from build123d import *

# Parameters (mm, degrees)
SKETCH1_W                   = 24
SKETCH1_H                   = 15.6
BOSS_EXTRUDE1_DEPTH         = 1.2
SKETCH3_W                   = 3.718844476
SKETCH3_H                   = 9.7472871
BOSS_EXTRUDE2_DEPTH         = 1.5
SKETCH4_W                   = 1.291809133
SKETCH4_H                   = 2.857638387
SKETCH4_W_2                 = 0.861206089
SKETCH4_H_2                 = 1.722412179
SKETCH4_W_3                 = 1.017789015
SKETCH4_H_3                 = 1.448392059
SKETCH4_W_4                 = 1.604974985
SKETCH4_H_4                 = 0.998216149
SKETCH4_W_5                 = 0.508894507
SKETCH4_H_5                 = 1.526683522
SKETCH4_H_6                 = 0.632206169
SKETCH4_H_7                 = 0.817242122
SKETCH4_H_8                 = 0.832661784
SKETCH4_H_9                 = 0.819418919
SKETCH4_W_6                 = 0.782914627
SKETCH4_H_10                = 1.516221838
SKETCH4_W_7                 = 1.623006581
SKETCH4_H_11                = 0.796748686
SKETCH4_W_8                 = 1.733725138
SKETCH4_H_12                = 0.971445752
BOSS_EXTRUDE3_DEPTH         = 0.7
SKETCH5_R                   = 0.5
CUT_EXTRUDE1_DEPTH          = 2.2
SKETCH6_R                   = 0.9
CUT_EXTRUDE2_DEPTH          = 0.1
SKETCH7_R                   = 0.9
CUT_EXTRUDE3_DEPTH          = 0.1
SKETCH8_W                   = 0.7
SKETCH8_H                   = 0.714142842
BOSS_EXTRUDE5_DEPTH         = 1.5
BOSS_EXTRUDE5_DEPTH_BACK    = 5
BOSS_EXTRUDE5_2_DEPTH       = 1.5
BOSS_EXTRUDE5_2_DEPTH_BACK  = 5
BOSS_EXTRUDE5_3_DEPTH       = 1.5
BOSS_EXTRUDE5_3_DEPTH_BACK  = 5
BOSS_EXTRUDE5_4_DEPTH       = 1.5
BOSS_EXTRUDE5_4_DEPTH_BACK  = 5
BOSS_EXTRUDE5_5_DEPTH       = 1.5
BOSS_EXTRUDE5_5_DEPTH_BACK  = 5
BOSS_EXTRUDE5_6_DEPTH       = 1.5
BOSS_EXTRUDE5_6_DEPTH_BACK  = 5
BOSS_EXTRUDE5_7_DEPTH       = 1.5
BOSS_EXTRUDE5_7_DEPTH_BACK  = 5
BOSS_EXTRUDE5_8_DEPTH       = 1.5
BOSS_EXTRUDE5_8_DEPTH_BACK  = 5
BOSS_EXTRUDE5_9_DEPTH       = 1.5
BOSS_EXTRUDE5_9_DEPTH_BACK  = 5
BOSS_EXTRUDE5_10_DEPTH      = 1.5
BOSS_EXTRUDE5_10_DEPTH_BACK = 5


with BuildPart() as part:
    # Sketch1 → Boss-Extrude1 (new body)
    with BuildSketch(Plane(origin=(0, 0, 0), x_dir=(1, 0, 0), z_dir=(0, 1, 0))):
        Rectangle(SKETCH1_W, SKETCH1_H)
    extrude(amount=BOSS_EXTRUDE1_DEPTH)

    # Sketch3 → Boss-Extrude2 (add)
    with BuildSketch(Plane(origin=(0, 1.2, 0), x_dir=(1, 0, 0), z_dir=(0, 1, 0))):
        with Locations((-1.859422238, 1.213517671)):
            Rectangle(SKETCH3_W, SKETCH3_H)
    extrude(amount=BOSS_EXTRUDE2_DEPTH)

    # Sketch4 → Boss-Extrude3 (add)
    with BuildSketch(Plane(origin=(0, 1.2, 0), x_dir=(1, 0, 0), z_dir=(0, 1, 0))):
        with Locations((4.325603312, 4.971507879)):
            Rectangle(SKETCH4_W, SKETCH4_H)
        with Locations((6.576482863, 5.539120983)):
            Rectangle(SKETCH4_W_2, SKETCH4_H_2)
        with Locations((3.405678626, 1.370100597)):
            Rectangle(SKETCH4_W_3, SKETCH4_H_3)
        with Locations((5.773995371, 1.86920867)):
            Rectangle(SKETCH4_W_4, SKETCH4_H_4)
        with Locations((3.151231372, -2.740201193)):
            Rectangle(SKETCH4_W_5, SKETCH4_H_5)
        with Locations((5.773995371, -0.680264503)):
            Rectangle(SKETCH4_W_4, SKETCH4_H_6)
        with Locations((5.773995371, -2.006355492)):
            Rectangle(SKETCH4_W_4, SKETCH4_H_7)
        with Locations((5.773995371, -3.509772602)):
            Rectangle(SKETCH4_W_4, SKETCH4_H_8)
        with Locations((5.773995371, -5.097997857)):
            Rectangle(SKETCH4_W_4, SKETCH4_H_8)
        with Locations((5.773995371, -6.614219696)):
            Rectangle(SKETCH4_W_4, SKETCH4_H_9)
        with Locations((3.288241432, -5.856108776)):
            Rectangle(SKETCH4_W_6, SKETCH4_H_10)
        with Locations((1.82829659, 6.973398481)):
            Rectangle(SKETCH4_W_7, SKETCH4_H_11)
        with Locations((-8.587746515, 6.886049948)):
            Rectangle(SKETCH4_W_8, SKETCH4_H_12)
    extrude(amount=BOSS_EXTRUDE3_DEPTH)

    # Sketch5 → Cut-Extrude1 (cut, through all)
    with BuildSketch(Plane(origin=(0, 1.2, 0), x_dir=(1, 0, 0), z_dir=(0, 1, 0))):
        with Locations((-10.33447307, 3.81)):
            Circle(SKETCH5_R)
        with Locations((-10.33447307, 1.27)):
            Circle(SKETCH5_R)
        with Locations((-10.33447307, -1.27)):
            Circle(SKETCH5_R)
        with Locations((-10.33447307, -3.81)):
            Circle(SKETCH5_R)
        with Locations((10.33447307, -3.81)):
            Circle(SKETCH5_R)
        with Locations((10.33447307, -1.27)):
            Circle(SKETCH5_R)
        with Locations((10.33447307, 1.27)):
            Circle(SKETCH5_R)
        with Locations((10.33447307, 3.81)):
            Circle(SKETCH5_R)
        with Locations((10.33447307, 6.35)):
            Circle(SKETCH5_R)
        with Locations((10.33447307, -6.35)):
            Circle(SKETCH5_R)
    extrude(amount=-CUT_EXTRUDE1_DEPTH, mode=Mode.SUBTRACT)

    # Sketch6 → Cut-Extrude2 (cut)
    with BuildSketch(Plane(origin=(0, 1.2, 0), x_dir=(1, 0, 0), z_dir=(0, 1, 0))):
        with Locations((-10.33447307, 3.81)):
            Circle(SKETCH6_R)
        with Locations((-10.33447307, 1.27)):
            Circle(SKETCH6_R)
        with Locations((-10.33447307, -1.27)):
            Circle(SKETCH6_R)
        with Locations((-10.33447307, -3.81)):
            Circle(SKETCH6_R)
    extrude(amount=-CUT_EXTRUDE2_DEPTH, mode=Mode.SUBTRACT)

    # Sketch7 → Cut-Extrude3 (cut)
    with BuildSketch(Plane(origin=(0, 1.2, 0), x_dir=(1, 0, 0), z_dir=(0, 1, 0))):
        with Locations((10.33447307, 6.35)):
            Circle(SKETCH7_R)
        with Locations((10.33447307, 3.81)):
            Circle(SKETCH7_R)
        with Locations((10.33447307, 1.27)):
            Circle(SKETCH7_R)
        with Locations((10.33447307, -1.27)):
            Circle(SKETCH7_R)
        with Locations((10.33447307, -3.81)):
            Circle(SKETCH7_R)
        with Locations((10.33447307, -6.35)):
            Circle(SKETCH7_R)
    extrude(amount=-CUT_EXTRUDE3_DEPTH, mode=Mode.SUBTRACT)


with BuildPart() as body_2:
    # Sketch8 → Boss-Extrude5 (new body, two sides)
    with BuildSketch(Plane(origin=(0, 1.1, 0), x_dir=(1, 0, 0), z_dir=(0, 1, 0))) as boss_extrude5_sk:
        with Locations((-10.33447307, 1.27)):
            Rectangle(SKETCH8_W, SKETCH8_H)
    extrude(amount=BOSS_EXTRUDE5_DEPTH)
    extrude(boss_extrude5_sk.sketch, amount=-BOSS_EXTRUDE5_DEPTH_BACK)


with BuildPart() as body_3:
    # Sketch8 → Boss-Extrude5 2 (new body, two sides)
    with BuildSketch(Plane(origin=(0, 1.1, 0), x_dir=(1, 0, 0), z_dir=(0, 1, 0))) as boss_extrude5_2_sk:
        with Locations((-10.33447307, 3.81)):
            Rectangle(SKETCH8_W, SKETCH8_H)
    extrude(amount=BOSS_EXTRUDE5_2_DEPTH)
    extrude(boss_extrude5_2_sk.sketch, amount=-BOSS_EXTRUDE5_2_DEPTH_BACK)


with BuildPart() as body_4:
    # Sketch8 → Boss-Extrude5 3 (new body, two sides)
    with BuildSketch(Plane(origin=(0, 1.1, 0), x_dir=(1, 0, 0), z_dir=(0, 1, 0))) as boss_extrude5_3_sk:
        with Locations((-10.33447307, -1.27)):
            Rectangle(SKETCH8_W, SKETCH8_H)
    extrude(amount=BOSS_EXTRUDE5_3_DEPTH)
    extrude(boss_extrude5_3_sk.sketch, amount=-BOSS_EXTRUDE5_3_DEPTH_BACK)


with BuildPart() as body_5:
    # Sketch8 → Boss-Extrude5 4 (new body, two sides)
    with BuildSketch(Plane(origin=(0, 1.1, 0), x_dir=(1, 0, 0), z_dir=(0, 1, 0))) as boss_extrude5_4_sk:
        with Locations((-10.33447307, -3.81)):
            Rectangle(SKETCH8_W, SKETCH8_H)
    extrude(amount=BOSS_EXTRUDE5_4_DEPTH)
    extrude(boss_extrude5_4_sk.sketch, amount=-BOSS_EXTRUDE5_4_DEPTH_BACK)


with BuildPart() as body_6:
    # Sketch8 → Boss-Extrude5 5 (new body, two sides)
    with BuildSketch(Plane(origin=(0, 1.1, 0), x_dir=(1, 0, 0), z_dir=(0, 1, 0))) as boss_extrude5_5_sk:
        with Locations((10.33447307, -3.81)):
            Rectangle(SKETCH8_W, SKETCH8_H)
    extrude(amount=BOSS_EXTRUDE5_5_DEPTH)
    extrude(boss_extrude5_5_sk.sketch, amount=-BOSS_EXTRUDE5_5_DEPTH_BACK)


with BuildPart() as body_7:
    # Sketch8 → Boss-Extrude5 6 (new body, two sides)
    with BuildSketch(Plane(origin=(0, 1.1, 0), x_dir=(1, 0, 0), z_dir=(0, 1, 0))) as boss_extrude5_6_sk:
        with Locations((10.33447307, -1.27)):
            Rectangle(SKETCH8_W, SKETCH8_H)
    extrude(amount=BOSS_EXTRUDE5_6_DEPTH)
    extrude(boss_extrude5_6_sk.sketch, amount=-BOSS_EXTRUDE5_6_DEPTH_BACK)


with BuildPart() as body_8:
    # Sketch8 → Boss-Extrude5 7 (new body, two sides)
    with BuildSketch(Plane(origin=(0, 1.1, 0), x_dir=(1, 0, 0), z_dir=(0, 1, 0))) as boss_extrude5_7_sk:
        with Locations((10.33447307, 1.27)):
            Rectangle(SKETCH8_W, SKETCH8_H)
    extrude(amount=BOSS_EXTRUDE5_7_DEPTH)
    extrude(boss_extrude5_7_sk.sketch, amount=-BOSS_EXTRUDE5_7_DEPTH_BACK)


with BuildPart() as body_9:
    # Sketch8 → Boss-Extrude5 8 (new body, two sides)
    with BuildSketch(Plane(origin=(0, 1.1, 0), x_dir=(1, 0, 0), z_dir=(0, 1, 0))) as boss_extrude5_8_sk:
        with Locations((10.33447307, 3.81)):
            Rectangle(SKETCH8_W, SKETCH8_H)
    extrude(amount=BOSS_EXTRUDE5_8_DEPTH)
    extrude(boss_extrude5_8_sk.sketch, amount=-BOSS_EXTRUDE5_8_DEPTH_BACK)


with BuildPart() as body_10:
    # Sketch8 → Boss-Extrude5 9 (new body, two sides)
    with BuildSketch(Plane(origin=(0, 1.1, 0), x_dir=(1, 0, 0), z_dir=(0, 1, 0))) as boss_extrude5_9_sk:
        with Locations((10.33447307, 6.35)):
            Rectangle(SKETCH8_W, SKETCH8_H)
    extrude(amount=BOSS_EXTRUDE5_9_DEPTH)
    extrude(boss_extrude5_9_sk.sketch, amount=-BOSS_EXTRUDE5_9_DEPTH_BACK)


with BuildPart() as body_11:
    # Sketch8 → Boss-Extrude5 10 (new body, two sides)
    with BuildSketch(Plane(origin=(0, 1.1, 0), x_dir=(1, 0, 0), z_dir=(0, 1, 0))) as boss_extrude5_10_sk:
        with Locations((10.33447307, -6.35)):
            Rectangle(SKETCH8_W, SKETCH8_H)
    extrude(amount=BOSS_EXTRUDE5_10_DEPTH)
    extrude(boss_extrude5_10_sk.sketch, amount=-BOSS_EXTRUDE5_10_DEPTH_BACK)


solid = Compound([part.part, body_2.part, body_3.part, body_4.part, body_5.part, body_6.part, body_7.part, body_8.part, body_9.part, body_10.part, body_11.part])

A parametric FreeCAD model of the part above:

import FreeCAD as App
import Part
import Sketcher

V = App.Vector


def add_polygon(sketch, points):
    """Adds a closed chain of lines whose ends are joined by coincident constraints."""
    first, n = sketch.GeometryCount, len(points)
    for a, b in zip(points, points[1:] + points[:1]):
        sketch.addGeometry(Part.LineSegment(App.Vector(*a, 0), App.Vector(*b, 0)), False)
    for i in range(n):
        sketch.addConstraint(Sketcher.Constraint("Coincident", first + i, 2, first + (i + 1) % n, 1))

doc = App.newDocument("Part")
params = doc.addObject("Spreadsheet::Sheet", "Params")
for row, (alias, value) in enumerate([
    ("sketch1_width", "24 mm"),
    ("sketch1_height", "15.6 mm"),
    ("pad1_length", "1.2 mm"),
    ("pad2_length", "1.5 mm"),
    ("pad3_length", "0.7 mm"),
    ("sketch4_diameter", "1 mm"),
    ("sketch5_diameter", "1.8 mm"),
    ("pocket2_length", "0.1 mm"),
    ("sketch6_diameter", "1.8 mm"),
    ("pocket3_length", "0.1 mm"),
    ("sketch7_width", "0.7 mm"),
    ("pad4_length", "1.5 mm"),
    ("pad4_length2", "5 mm"),
    ("sketch8_width", "0.7 mm"),
    ("pad5_length", "1.5 mm"),
    ("pad5_length2", "5 mm"),
    ("sketch9_width", "0.7 mm"),
    ("pad6_length", "1.5 mm"),
    ("pad6_length2", "5 mm"),
    ("sketch10_width", "0.7 mm"),
    ("pad7_length", "1.5 mm"),
    ("pad7_length2", "5 mm"),
    ("sketch11_width", "0.7 mm"),
    ("pad8_length", "1.5 mm"),
    ("pad8_length2", "5 mm"),
    ("sketch12_width", "0.7 mm"),
    ("pad9_length", "1.5 mm"),
    ("pad9_length2", "5 mm"),
    ("sketch13_width", "0.7 mm"),
    ("pad10_length", "1.5 mm"),
    ("pad10_length2", "5 mm"),
    ("sketch14_width", "0.7 mm"),
    ("pad11_length", "1.5 mm"),
    ("pad11_length2", "5 mm"),
    ("sketch15_width", "0.7 mm"),
    ("pad12_length", "1.5 mm"),
    ("pad12_length2", "5 mm"),
    ("sketch16_width", "0.7 mm"),
    ("pad13_length", "1.5 mm"),
    ("pad13_length2", "5 mm"),
], start=1):
    params.set(f"A{row}", alias)
    params.set(f"B{row}", "=" + value)
    params.setAlias(f"B{row}", alias)

body = doc.addObject("PartDesign::Body", "Body")

sketch1 = doc.addObject("Sketcher::SketchObject", "Sketch")
body.addObject(sketch1)
sketch1.AttachmentSupport = (doc.XZ_Plane, [""])
sketch1.MapMode = "FlatFace"
add_polygon(sketch1, [(-12, -8), (-12, 8), (12, 8), (12, -8)])
sketch1.addConstraint([
    Sketcher.Constraint("Vertical", 0),
    Sketcher.Constraint("Horizontal", 1),
    Sketcher.Constraint("Vertical", 2),
    Sketcher.Constraint("Horizontal", 3),
    Sketcher.Constraint("Symmetric", 0, 2, 2, 2, -1, 1),
    Sketcher.Constraint("DistanceX", 1, 1, 1, 2, 24.0),
    Sketcher.Constraint("DistanceY", 0, 1, 0, 2, 15.6),
])
sketch1.setExpression("Constraints[9]", "Params.sketch1_width")
sketch1.setExpression("Constraints[10]", "Params.sketch1_height")
pad1 = doc.addObject("PartDesign::Pad", "Pad")
body.addObject(pad1)
pad1.Profile = sketch1
pad1.setExpression("Length", "Params.pad1_length")
pad1.Reversed = True

sketch2 = doc.addObject("Sketcher::SketchObject", "Sketch001")
body.addObject(sketch2)
sketch2.AttachmentSupport = (doc.XZ_Plane, [""])
sketch2.MapMode = "FlatFace"
sketch2.AttachmentOffset = App.Placement(V(0, 0, -1.2), App.Rotation())
add_polygon(sketch2, [(-3.7, -6.1), (-3.7, 3.7), (0, 3.7), (0, -6.1)])
sketch2.addConstraint([
    Sketcher.Constraint("Vertical", 0),
    Sketcher.Constraint("Horizontal", 1),
    Sketcher.Constraint("Vertical", 2),
    Sketcher.Constraint("Horizontal", 3),
    Sketcher.Constraint("PointOnObject", 1, 2, -2),
    Sketcher.Constraint("DistanceX", 1, 1, 1, 2, 3.718844),
    Sketcher.Constraint("DistanceY", 0, 1, 0, 2, 9.747287),
    Sketcher.Constraint("DistanceY", 2, 2, -1, 1, 6.087161),
])
pad2 = doc.addObject("PartDesign::Pad", "Pad001")
body.addObject(pad2)
pad2.Profile = sketch2
pad2.setExpression("Length", "Params.pad2_length")
pad2.Reversed = True

sketch3 = doc.addObject("Sketcher::SketchObject", "Sketch002")
body.addObject(sketch3)
sketch3.AttachmentSupport = (doc.XZ_Plane, [""])
sketch3.MapMode = "FlatFace"
sketch3.AttachmentOffset = App.Placement(V(0, 0, -1.2), App.Rotation())
add_polygon(sketch3, [(3.7, -6.4), (3.7, -3.5), (5, -3.5), (5, -6.4)])
add_polygon(sketch3, [(6.1, -6.4), (6.1, -4.7), (7, -4.7), (7, -6.4)])
add_polygon(sketch3, [(2.9, -2.1), (2.9, -0.6), (3.9, -0.6), (3.9, -2.1)])
add_polygon(sketch3, [(5, -2.4), (5, -1.4), (6.6, -1.4), (6.6, -2.4)])
add_polygon(sketch3, [(2.9, 2), (2.9, 3.5), (3.4, 3.5), (3.4, 2)])
add_polygon(sketch3, [(5, 0.4), (5, 1), (6.6, 1), (6.6, 0.4)])
add_polygon(sketch3, [(5, 1.6), (5, 2.4), (6.6, 2.4), (6.6, 1.6)])
add_polygon(sketch3, [(5, 3.1), (5, 3.9), (6.6, 3.9), (6.6, 3.1)])
add_polygon(sketch3, [(5, 4.7), (5, 5.5), (6.6, 5.5), (6.6, 4.7)])
add_polygon(sketch3, [(5, 6.2), (5, 7), (6.6, 7), (6.6, 6.2)])
add_polygon(sketch3, [(2.9, 5.1), (2.9, 6.6), (3.7, 6.6), (3.7, 5.1)])
add_polygon(sketch3, [(1, -7.4), (1, -6.6), (2.6, -6.6), (2.6, -7.4)])
add_polygon(sketch3, [(-9.5, -7.4), (-9.5, -6.4), (-7.7, -6.4), (-7.7, -7.4)])
sketch3.addConstraint([
    Sketcher.Constraint("Vertical", 0),
    Sketcher.Constraint("Horizontal", 1),
    Sketcher.Constraint("Vertical", 2),
    Sketcher.Constraint("Horizontal", 3),
    Sketcher.Constraint("Vertical", 4),
    Sketcher.Constraint("Horizontal", 5),
    Sketcher.Constraint("Vertical", 6),
    Sketcher.Constraint("Horizontal", 7),
    Sketcher.Constraint("Vertical", 8),
    Sketcher.Constraint("Horizontal", 9),
    Sketcher.Constraint("Vertical", 10),
    Sketcher.Constraint("Horizontal", 11),
    Sketcher.Constraint("Vertical", 12),
    Sketcher.Constraint("Horizontal", 13),
    Sketcher.Constraint("Vertical", 14),
    Sketcher.Constraint("Horizontal", 15),
    Sketcher.Constraint("Vertical", 16),
    Sketcher.Constraint("Horizontal", 17),
    Sketcher.Constraint("Vertical", 18),
    Sketcher.Constraint("Horizontal", 19),
    Sketcher.Constraint("Vertical", 20),
    Sketcher.Constraint("Horizontal", 21),
    Sketcher.Constraint("Vertical", 22),
    Sketcher.Constraint("Horizontal", 23),
    Sketcher.Constraint("Vertical", 24),
    Sketcher.Constraint("Horizontal", 25),
    Sketcher.Constraint("Vertical", 26),
    Sketcher.Constraint("Horizontal", 27),
    Sketcher.Constraint("Vertical", 28),
    Sketcher.Constraint("Horizontal", 29),
    Sketcher.Constraint("Vertical", 30),
    Sketcher.Constraint("Horizontal", 31),
    Sketcher.Constraint("Vertical", 32),
    Sketcher.Constraint("Horizontal", 33),
    Sketcher.Constraint("Vertical", 34),
    Sketcher.Constraint("Horizontal", 35),
    Sketcher.Constraint("Vertical", 36),
    Sketcher.Constraint("Horizontal", 37),
    Sketcher.Constraint("Vertical", 38),
    Sketcher.Constraint("Horizontal", 39),
    Sketcher.Constraint("Vertical", 40),
    Sketcher.Constraint("Horizontal", 41),
    Sketcher.Constraint("Vertical", 42),
    Sketcher.Constraint("Horizontal", 43),
    Sketcher.Constraint("Vertical", 44),
    Sketcher.Constraint("Horizontal", 45),
    Sketcher.Constraint("Vertical", 46),
    Sketcher.Constraint("Horizontal", 47),
    Sketcher.Constraint("Vertical", 48),
    Sketcher.Constraint("Horizontal", 49),
    Sketcher.Constraint("Vertical", 50),
    Sketcher.Constraint("Horizontal", 51),
    Sketcher.Constraint("Horizontal", 3, 2, 6, 2),
    Sketcher.Constraint("Horizontal", 7, 2, 48, 2),
    Sketcher.Constraint("Horizontal", 47, 2, 50, 2),
    Sketcher.Constraint("Vertical", 2, 2, 12, 2),
    Sketcher.Constraint("Vertical", 11, 2, 16, 2),
    Sketcher.Constraint("Vertical", 15, 2, 20, 2),
    Sketcher.Constraint("Vertical", 14, 2, 21, 2),
    Sketcher.Constraint("Vertical", 23, 2, 24, 2),
    Sketcher.Constraint("Vertical", 22, 2, 25, 2),
    Sketcher.Constraint("Vertical", 27, 2, 28, 2),
    Sketcher.Constraint("Vertical", 26, 2, 29, 2),
    Sketcher.Constraint("Vertical", 31, 2, 32, 2),
    Sketcher.Constraint("Vertical", 30, 2, 33, 2),
    Sketcher.Constraint("Vertical", 35, 2, 36, 2),
    Sketcher.Constraint("Vertical", 34, 2, 37, 2),
    Sketcher.Constraint("Vertical", 19, 2, 40, 2),
    Sketcher.Constraint("Vertical", 3, 2, 41, 2),
    Sketcher.Constraint("Equal", 30, 32),
    Sketcher.Constraint("DistanceX", 1, 1, 1, 2, 1.291809),
    Sketcher.Constraint("DistanceX", 9, 1, 9, 2, 1.017789),
    Sketcher.Constraint("DistanceY", 0, 1, 0, 2, 2.857638),
    Sketcher.Constraint("DistanceY", 28, 1, 28, 2, 0.832662),
    Sketcher.Constraint("DistanceY", 36, 1, 36, 2, 0.819419),
    Sketcher.Constraint("DistanceY", 40, 1, 40, 2, 1.516222),
    Sketcher.Constraint("DistanceY", 44, 1, 44, 2, 0.796749),
    Sketcher.Constraint("DistanceX", -1, 1, 0, 2, 3.679699),
    Sketcher.Constraint("DistanceY", 12, 2, -1, 1, 1.370101),
    Sketcher.Constraint("DistanceX", -1, 1, 45, 2, 2.6398),
    Sketcher.Constraint("DistanceX", 8, 2, 5, 2, 4.110302),
    Sketcher.Constraint("DistanceY", 4, 2, 14, 2, 2.309598),
    Sketcher.Constraint("DistanceY", 31, 2, 17, 2, 0.410101),
    Sketcher.Constraint("DistanceY", 32, 2, 36, 2, 1.5096),
    Sketcher.Constraint("DistanceX", 5, 1, 5, 2, 0.861206),
    Sketcher.Constraint("DistanceX", 13, 1, 13, 2, 1.604975),
    Sketcher.Constraint("DistanceX", 17, 1, 17, 2, 0.508895),
    Sketcher.Constraint("DistanceX", 41, 1, 41, 2, 0.782915),
    Sketcher.Constraint("DistanceX", 45, 1, 45, 2, 1.623007),
    Sketcher.Constraint("DistanceX", 49, 1, 49, 2, 1.733725),
    Sketcher.Constraint("DistanceY", 4, 1, 4, 2, 1.722412),
    Sketcher.Constraint("DistanceY", 8, 1, 8, 2, 1.448392),
    Sketcher.Constraint("DistanceY", 12, 1, 12, 2, 0.998216),
    Sketcher.Constraint("DistanceY", 16, 1, 16, 2, 1.526684),
    Sketcher.Constraint("DistanceY", 20, 1, 20, 2, 0.632206),
    Sketcher.Constraint("DistanceY", 24, 1, 24, 2, 0.817242),
    Sketcher.Constraint("DistanceY", 48, 1, 48, 2, 0.971446),
    Sketcher.Constraint("DistanceY", -1, 1, 18, 2, 1.976859),
    Sketcher.Constraint("DistanceY", -1, 1, 22, 2, 0.364161),
    Sketcher.Constraint("DistanceY", -1, 1, 32, 2, 5.514329),
    Sketcher.Constraint("DistanceY", -1, 1, 40, 2, 6.61422),
    Sketcher.Constraint("DistanceX", 48, 2, -1, 1, 9.454609),
    Sketcher.Constraint("DistanceY", 4, 2, 8, 2, 4.03201),
    Sketcher.Constraint("DistanceY", 20, 2, 24, 2, 1.418609),
])
pad3 = doc.addObject("PartDesign::Pad", "Pad002")
body.addObject(pad3)
pad3.Profile = sketch3
pad3.setExpression("Length", "Params.pad3_length")
pad3.Reversed = True

sketch4 = doc.addObject("Sketcher::SketchObject", "Sketch003")
body.addObject(sketch4)
sketch4.AttachmentSupport = (doc.XZ_Plane, [""])
sketch4.MapMode = "FlatFace"
sketch4.AttachmentOffset = App.Placement(V(0, 0, -1.2), App.Rotation())
sketch4.addGeometry([
    Part.Circle(V(-10.3, -3.8, 0), V(0, 0, 1), 0.5),
    Part.Circle(V(-10.3, -1.3, 0), V(0, 0, 1), 0.5),
    Part.Circle(V(-10.3, 1.3, 0), V(0, 0, 1), 0.5),
    Part.Circle(V(-10.3, 3.8, 0), V(0, 0, 1), 0.5),
    Part.Circle(V(10.3, 3.8, 0), V(0, 0, 1), 0.5),
    Part.Circle(V(10.3, 1.3, 0), V(0, 0, 1), 0.5),
    Part.Circle(V(10.3, -1.3, 0), V(0, 0, 1), 0.5),
    Part.Circle(V(10.3, -3.8, 0), V(0, 0, 1), 0.5),
    Part.Circle(V(10.3, -6.3, 0), V(0, 0, 1), 0.5),
    Part.Circle(V(10.3, 6.3, 0), V(0, 0, 1), 0.5),
], False)
sketch4.addConstraint([
    Sketcher.Constraint("Equal", 0, 1),
    Sketcher.Constraint("Equal", 1, 2),
    Sketcher.Constraint("Equal", 2, 3),
    Sketcher.Constraint("Equal", 3, 4),
    Sketcher.Constraint("Equal", 4, 5),
    Sketcher.Constraint("Equal", 5, 6),
    Sketcher.Constraint("Equal", 6, 7),
    Sketcher.Constraint("Equal", 7, 8),
    Sketcher.Constraint("Equal", 8, 9),
    Sketcher.Constraint("Symmetric", 0, 3, 4, 3, -1, 1),
    Sketcher.Constraint("Symmetric", 1, 3, 5, 3, -1, 1),
    Sketcher.Constraint("Symmetric", 2, 3, 6, 3, -1, 1),
    Sketcher.Constraint("Symmetric", 3, 3, 7, 3, -1, 1),
    Sketcher.Constraint("Symmetric", 3, 3, 4, 3, -2),
    Sketcher.Constraint("Symmetric", 2, 3, 5, 3, -2),
    Sketcher.Constraint("Symmetric", 8, 3, 9, 3, -1),
    Sketcher.Constraint("Vertical", 0, 3, 1, 3),
    Sketcher.Constraint("Vertical", 7, 3, 8, 3),
    Sketcher.Constraint("Diameter", 0, 1.0),
    Sketcher.Constraint("DistanceY", 8, 3, 9, 3, 12.7),
    Sketcher.Constraint("DistanceY", 0, 3, -1, 1, 3.81),
    Sketcher.Constraint("DistanceY", 1, 3, -1, 1, 1.27),
    Sketcher.Constraint("DistanceX", 0, 3, -1, 1, 10.334473),
])
sketch4.setExpression("Constraints[18]", "Params.sketch4_diameter")
pocket1 = doc.addObject("PartDesign::Pocket", "Pocket")
body.addObject(pocket1)
pocket1.Profile = sketch4
pocket1.Type = "ThroughAll"
pocket1.Reversed = True

sketch5 = doc.addObject("Sketcher::SketchObject", "Sketch004")
body.addObject(sketch5)
sketch5.AttachmentSupport = (doc.XZ_Plane, [""])
sketch5.MapMode = "FlatFace"
sketch5.AttachmentOffset = App.Placement(V(0, 0, -1.2), App.Rotation())
sketch5.addGeometry([
    Part.Circle(V(-10.3, -3.8, 0), V(0, 0, 1), 0.9),
    Part.Circle(V(-10.3, -1.3, 0), V(0, 0, 1), 0.9),
    Part.Circle(V(-10.3, 1.3, 0), V(0, 0, 1), 0.9),
    Part.Circle(V(-10.3, 3.8, 0), V(0, 0, 1), 0.9),
], False)
sketch5.addConstraint([
    Sketcher.Constraint("Equal", 0, 1),
    Sketcher.Constraint("Equal", 1, 2),
    Sketcher.Constraint("Equal", 2, 3),
    Sketcher.Constraint("Symmetric", 1, 3, 2, 3, -1),
    Sketcher.Constraint("Symmetric", 0, 3, 3, 3, -1),
    Sketcher.Constraint("Vertical", 0, 3, 1, 3),
    Sketcher.Constraint("Diameter", 0, 1.8),
    Sketcher.Constraint("DistanceY", 0, 3, -1, 1, 3.81),
    Sketcher.Constraint("DistanceY", 1, 3, -1, 1, 1.27),
    Sketcher.Constraint("DistanceX", 0, 3, -1, 1, 10.334473),
])
sketch5.setExpression("Constraints[6]", "Params.sketch5_diameter")
pocket2 = doc.addObject("PartDesign::Pocket", "Pocket001")
body.addObject(pocket2)
pocket2.Profile = sketch5
pocket2.setExpression("Length", "Params.pocket2_length")
pocket2.Reversed = True

sketch6 = doc.addObject("Sketcher::SketchObject", "Sketch005")
body.addObject(sketch6)
sketch6.AttachmentSupport = (doc.XZ_Plane, [""])
sketch6.MapMode = "FlatFace"
sketch6.AttachmentOffset = App.Placement(V(0, 0, -1.2), App.Rotation())
sketch6.addGeometry([
    Part.Circle(V(10.3, -6.3, 0), V(0, 0, 1), 0.9),
    Part.Circle(V(10.3, -3.8, 0), V(0, 0, 1), 0.9),
    Part.Circle(V(10.3, -1.3, 0), V(0, 0, 1), 0.9),
    Part.Circle(V(10.3, 1.3, 0), V(0, 0, 1), 0.9),
    Part.Circle(V(10.3, 3.8, 0), V(0, 0, 1), 0.9),
    Part.Circle(V(10.3, 6.3, 0), V(0, 0, 1), 0.9),
], False)
sketch6.addConstraint([
    Sketcher.Constraint("Equal", 0, 1),
    Sketcher.Constraint("Equal", 1, 2),
    Sketcher.Constraint("Equal", 2, 3),
    Sketcher.Constraint("Equal", 3, 4),
    Sketcher.Constraint("Equal", 4, 5),
    Sketcher.Constraint("Symmetric", 2, 3, 3, 3, -1),
    Sketcher.Constraint("Symmetric", 1, 3, 4, 3, -1),
    Sketcher.Constraint("Symmetric", 0, 3, 5, 3, -1),
    Sketcher.Constraint("Vertical", 0, 3, 1, 3),
    Sketcher.Constraint("Vertical", 1, 3, 2, 3),
    Sketcher.Constraint("Diameter", 0, 1.8),
    Sketcher.Constraint("DistanceY", 0, 3, 5, 3, 12.7),
    Sketcher.Constraint("DistanceY", 1, 3, -1, 1, 3.81),
    Sketcher.Constraint("DistanceY", 2, 3, -1, 1, 1.27),
    Sketcher.Constraint("DistanceX", -1, 1, 0, 3, 10.334473),
])
sketch6.setExpression("Constraints[10]", "Params.sketch6_diameter")
pocket3 = doc.addObject("PartDesign::Pocket", "Pocket002")
body.addObject(pocket3)
pocket3.Profile = sketch6
pocket3.setExpression("Length", "Params.pocket3_length")
pocket3.Reversed = True
body2 = doc.addObject("PartDesign::Body", "Body001")

sketch7 = doc.addObject("Sketcher::SketchObject", "Sketch006")
body2.addObject(sketch7)
sketch7.AttachmentSupport = (doc.getObject("XZ_Plane001"), [""])
sketch7.MapMode = "FlatFace"
sketch7.AttachmentOffset = App.Placement(V(0, 0, -1.1), App.Rotation())
add_polygon(sketch7, [(-10.7, -1.6), (-10.7, -0.9), (-10, -0.9), (-10, -1.6)])
sketch7.addConstraint([
    Sketcher.Constraint("Vertical", 0),
    Sketcher.Constraint("Horizontal", 1),
    Sketcher.Constraint("Vertical", 2),
    Sketcher.Constraint("Horizontal", 3),
    Sketcher.Constraint("DistanceX", 1, 1, 1, 2, 0.7),
    Sketcher.Constraint("DistanceY", 0, 1, 0, 2, 0.714143),
    Sketcher.Constraint("DistanceY", 0, 2, -1, 1, 0.912929),
    Sketcher.Constraint("DistanceX", 0, 2, -1, 1, 10.684473),
])
sketch7.setExpression("Constraints[8]", "Params.sketch7_width")
pad4 = doc.addObject("PartDesign::Pad", "Pad003")
body2.addObject(pad4)
pad4.Profile = sketch7
pad4.Type = "TwoLengths"
pad4.setExpression("Length", "Params.pad4_length")
pad4.setExpression("Length2", "Params.pad4_length2")
pad4.Reversed = True
body3 = doc.addObject("PartDesign::Body", "Body002")

sketch8 = doc.addObject("Sketcher::SketchObject", "Sketch007")
body3.addObject(sketch8)
sketch8.AttachmentSupport = (doc.getObject("XZ_Plane002"), [""])
sketch8.MapMode = "FlatFace"
sketch8.AttachmentOffset = App.Placement(V(0, 0, -1.1), App.Rotation())
add_polygon(sketch8, [(-10.7, -4.2), (-10.7, -3.5), (-10, -3.5), (-10, -4.2)])
sketch8.addConstraint([
    Sketcher.Constraint("Vertical", 0),
    Sketcher.Constraint("Horizontal", 1),
    Sketcher.Constraint("Vertical", 2),
    Sketcher.Constraint("Horizontal", 3),
    Sketcher.Constraint("DistanceX", 1, 1, 1, 2, 0.7),
    Sketcher.Constraint("DistanceY", 0, 1, 0, 2, 0.714143),
    Sketcher.Constraint("DistanceY", 0, 2, -1, 1, 3.452929),
    Sketcher.Constraint("DistanceX", 0, 2, -1, 1, 10.684473),
])
sketch8.setExpression("Constraints[8]", "Params.sketch8_width")
pad5 = doc.addObject("PartDesign::Pad", "Pad004")
body3.addObject(pad5)
pad5.Profile = sketch8
pad5.Type = "TwoLengths"
pad5.setExpression("Length", "Params.pad5_length")
pad5.setExpression("Length2", "Params.pad5_length2")
pad5.Reversed = True
body4 = doc.addObject("PartDesign::Body", "Body003")

sketch9 = doc.addObject("Sketcher::SketchObject", "Sketch008")
body4.addObject(sketch9)
sketch9.AttachmentSupport = (doc.getObject("XZ_Plane003"), [""])
sketch9.MapMode = "FlatFace"
sketch9.AttachmentOffset = App.Placement(V(0, 0, -1.1), App.Rotation())
add_polygon(sketch9, [(-10.7, 0.9), (-10.7, 1.6), (-10, 1.6), (-10, 0.9)])
sketch9.addConstraint([
    Sketcher.Constraint("Vertical", 0),
    Sketcher.Constraint("Horizontal", 1),
    Sketcher.Constraint("Vertical", 2),
    Sketcher.Constraint("Horizontal", 3),
    Sketcher.Constraint("DistanceX", 1, 1, 1, 2, 0.7),
    Sketcher.Constraint("DistanceY", 0, 1, 0, 2, 0.714143),
    Sketcher.Constraint("DistanceY", -1, 1, 0, 2, 1.627071),
    Sketcher.Constraint("DistanceX", 0, 2, -1, 1, 10.684473),
])
sketch9.setExpression("Constraints[8]", "Params.sketch9_width")
pad6 = doc.addObject("PartDesign::Pad", "Pad005")
body4.addObject(pad6)
pad6.Profile = sketch9
pad6.Type = "TwoLengths"
pad6.setExpression("Length", "Params.pad6_length")
pad6.setExpression("Length2", "Params.pad6_length2")
pad6.Reversed = True
body5 = doc.addObject("PartDesign::Body", "Body004")

sketch10 = doc.addObject("Sketcher::SketchObject", "Sketch009")
body5.addObject(sketch10)
sketch10.AttachmentSupport = (doc.getObject("XZ_Plane004"), [""])
sketch10.MapMode = "FlatFace"
sketch10.AttachmentOffset = App.Placement(V(0, 0, -1.1), App.Rotation())
add_polygon(sketch10, [(-10.7, 3.5), (-10.7, 4.2), (-10, 4.2), (-10, 3.5)])
sketch10.addConstraint([
    Sketcher.Constraint("Vertical", 0),
    Sketcher.Constraint("Horizontal", 1),
    Sketcher.Constraint("Vertical", 2),
    Sketcher.Constraint("Horizontal", 3),
    Sketcher.Constraint("DistanceX", 1, 1, 1, 2, 0.7),
    Sketcher.Constraint("DistanceY", 0, 1, 0, 2, 0.714143),
    Sketcher.Constraint("DistanceY", -1, 1, 0, 2, 4.167071),
    Sketcher.Constraint("DistanceX", 0, 2, -1, 1, 10.684473),
])
sketch10.setExpression("Constraints[8]", "Params.sketch10_width")
pad7 = doc.addObject("PartDesign::Pad", "Pad006")
body5.addObject(pad7)
pad7.Profile = sketch10
pad7.Type = "TwoLengths"
pad7.setExpression("Length", "Params.pad7_length")
pad7.setExpression("Length2", "Params.pad7_length2")
pad7.Reversed = True
body6 = doc.addObject("PartDesign::Body", "Body005")

sketch11 = doc.addObject("Sketcher::SketchObject", "Sketch010")
body6.addObject(sketch11)
sketch11.AttachmentSupport = (doc.getObject("XZ_Plane005"), [""])
sketch11.MapMode = "FlatFace"
sketch11.AttachmentOffset = App.Placement(V(0, 0, -1.1), App.Rotation())
add_polygon(sketch11, [(10, 3.5), (10, 4.2), (10.7, 4.2), (10.7, 3.5)])
sketch11.addConstraint([
    Sketcher.Constraint("Vertical", 0),
    Sketcher.Constraint("Horizontal", 1),
    Sketcher.Constraint("Vertical", 2),
    Sketcher.Constraint("Horizontal", 3),
    Sketcher.Constraint("DistanceX", 1, 1, 1, 2, 0.7),
    Sketcher.Constraint("DistanceY", 0, 1, 0, 2, 0.714143),
    Sketcher.Constraint("DistanceY", -1, 1, 0, 2, 4.167071),
    Sketcher.Constraint("DistanceX", -1, 1, 0, 2, 9.984473),
])
sketch11.setExpression("Constraints[8]", "Params.sketch11_width")
pad8 = doc.addObject("PartDesign::Pad", "Pad007")
body6.addObject(pad8)
pad8.Profile = sketch11
pad8.Type = "TwoLengths"
pad8.setExpression("Length", "Params.pad8_length")
pad8.setExpression("Length2", "Params.pad8_length2")
pad8.Reversed = True
body7 = doc.addObject("PartDesign::Body", "Body006")

sketch12 = doc.addObject("Sketcher::SketchObject", "Sketch011")
body7.addObject(sketch12)
sketch12.AttachmentSupport = (doc.getObject("XZ_Plane006"), [""])
sketch12.MapMode = "FlatFace"
sketch12.AttachmentOffset = App.Placement(V(0, 0, -1.1), App.Rotation())
add_polygon(sketch12, [(10, 0.9), (10, 1.6), (10.7, 1.6), (10.7, 0.9)])
sketch12.addConstraint([
    Sketcher.Constraint("Vertical", 0),
    Sketcher.Constraint("Horizontal", 1),
    Sketcher.Constraint("Vertical", 2),
    Sketcher.Constraint("Horizontal", 3),
    Sketcher.Constraint("DistanceX", 1, 1, 1, 2, 0.7),
    Sketcher.Constraint("DistanceY", 0, 1, 0, 2, 0.714143),
    Sketcher.Constraint("DistanceY", -1, 1, 0, 2, 1.627071),
    Sketcher.Constraint("DistanceX", -1, 1, 0, 2, 9.984473),
])
sketch12.setExpression("Constraints[8]", "Params.sketch12_width")
pad9 = doc.addObject("PartDesign::Pad", "Pad008")
body7.addObject(pad9)
pad9.Profile = sketch12
pad9.Type = "TwoLengths"
pad9.setExpression("Length", "Params.pad9_length")
pad9.setExpression("Length2", "Params.pad9_length2")
pad9.Reversed = True
body8 = doc.addObject("PartDesign::Body", "Body007")

sketch13 = doc.addObject("Sketcher::SketchObject", "Sketch012")
body8.addObject(sketch13)
sketch13.AttachmentSupport = (doc.getObject("XZ_Plane007"), [""])
sketch13.MapMode = "FlatFace"
sketch13.AttachmentOffset = App.Placement(V(0, 0, -1.1), App.Rotation())
add_polygon(sketch13, [(10, -1.6), (10, -0.9), (10.7, -0.9), (10.7, -1.6)])
sketch13.addConstraint([
    Sketcher.Constraint("Vertical", 0),
    Sketcher.Constraint("Horizontal", 1),
    Sketcher.Constraint("Vertical", 2),
    Sketcher.Constraint("Horizontal", 3),
    Sketcher.Constraint("DistanceX", 1, 1, 1, 2, 0.7),
    Sketcher.Constraint("DistanceY", 0, 1, 0, 2, 0.714143),
    Sketcher.Constraint("DistanceY", 0, 2, -1, 1, 0.912929),
    Sketcher.Constraint("DistanceX", -1, 1, 0, 2, 9.984473),
])
sketch13.setExpression("Constraints[8]", "Params.sketch13_width")
pad10 = doc.addObject("PartDesign::Pad", "Pad009")
body8.addObject(pad10)
pad10.Profile = sketch13
pad10.Type = "TwoLengths"
pad10.setExpression("Length", "Params.pad10_length")
pad10.setExpression("Length2", "Params.pad10_length2")
pad10.Reversed = True
body9 = doc.addObject("PartDesign::Body", "Body008")

sketch14 = doc.addObject("Sketcher::SketchObject", "Sketch013")
body9.addObject(sketch14)
sketch14.AttachmentSupport = (doc.getObject("XZ_Plane008"), [""])
sketch14.MapMode = "FlatFace"
sketch14.AttachmentOffset = App.Placement(V(0, 0, -1.1), App.Rotation())
add_polygon(sketch14, [(10, -4.2), (10, -3.5), (10.7, -3.5), (10.7, -4.2)])
sketch14.addConstraint([
    Sketcher.Constraint("Vertical", 0),
    Sketcher.Constraint("Horizontal", 1),
    Sketcher.Constraint("Vertical", 2),
    Sketcher.Constraint("Horizontal", 3),
    Sketcher.Constraint("DistanceX", 1, 1, 1, 2, 0.7),
    Sketcher.Constraint("DistanceY", 0, 1, 0, 2, 0.714143),
    Sketcher.Constraint("DistanceY", 0, 2, -1, 1, 3.452929),
    Sketcher.Constraint("DistanceX", -1, 1, 0, 2, 9.984473),
])
sketch14.setExpression("Constraints[8]", "Params.sketch14_width")
pad11 = doc.addObject("PartDesign::Pad", "Pad010")
body9.addObject(pad11)
pad11.Profile = sketch14
pad11.Type = "TwoLengths"
pad11.setExpression("Length", "Params.pad11_length")
pad11.setExpression("Length2", "Params.pad11_length2")
pad11.Reversed = True
body10 = doc.addObject("PartDesign::Body", "Body009")

sketch15 = doc.addObject("Sketcher::SketchObject", "Sketch014")
body10.addObject(sketch15)
sketch15.AttachmentSupport = (doc.getObject("XZ_Plane009"), [""])
sketch15.MapMode = "FlatFace"
sketch15.AttachmentOffset = App.Placement(V(0, 0, -1.1), App.Rotation())
add_polygon(sketch15, [(10, -6.7), (10, -6), (10.7, -6), (10.7, -6.7)])
sketch15.addConstraint([
    Sketcher.Constraint("Vertical", 0),
    Sketcher.Constraint("Horizontal", 1),
    Sketcher.Constraint("Vertical", 2),
    Sketcher.Constraint("Horizontal", 3),
    Sketcher.Constraint("DistanceX", 1, 1, 1, 2, 0.7),
    Sketcher.Constraint("DistanceY", 0, 1, 0, 2, 0.714143),
    Sketcher.Constraint("DistanceY", 0, 2, -1, 1, 5.992929),
    Sketcher.Constraint("DistanceX", -1, 1, 0, 2, 9.984473),
])
sketch15.setExpression("Constraints[8]", "Params.sketch15_width")
pad12 = doc.addObject("PartDesign::Pad", "Pad011")
body10.addObject(pad12)
pad12.Profile = sketch15
pad12.Type = "TwoLengths"
pad12.setExpression("Length", "Params.pad12_length")
pad12.setExpression("Length2", "Params.pad12_length2")
pad12.Reversed = True
body11 = doc.addObject("PartDesign::Body", "Body010")

sketch16 = doc.addObject("Sketcher::SketchObject", "Sketch015")
body11.addObject(sketch16)
sketch16.AttachmentSupport = (doc.getObject("XZ_Plane010"), [""])
sketch16.MapMode = "FlatFace"
sketch16.AttachmentOffset = App.Placement(V(0, 0, -1.1), App.Rotation())
add_polygon(sketch16, [(10, 6), (10, 6.7), (10.7, 6.7), (10.7, 6)])
sketch16.addConstraint([
    Sketcher.Constraint("Vertical", 0),
    Sketcher.Constraint("Horizontal", 1),
    Sketcher.Constraint("Vertical", 2),
    Sketcher.Constraint("Horizontal", 3),
    Sketcher.Constraint("DistanceX", 1, 1, 1, 2, 0.7),
    Sketcher.Constraint("DistanceY", 0, 1, 0, 2, 0.714143),
    Sketcher.Constraint("DistanceY", -1, 1, 0, 2, 6.707071),
    Sketcher.Constraint("DistanceX", -1, 1, 0, 2, 9.984473),
])
sketch16.setExpression("Constraints[8]", "Params.sketch16_width")
pad13 = doc.addObject("PartDesign::Pad", "Pad012")
body11.addObject(pad13)
pad13.Profile = sketch16
pad13.Type = "TwoLengths"
pad13.setExpression("Length", "Params.pad13_length")
pad13.setExpression("Length2", "Params.pad13_length2")
pad13.Reversed = True

doc.recompute()
